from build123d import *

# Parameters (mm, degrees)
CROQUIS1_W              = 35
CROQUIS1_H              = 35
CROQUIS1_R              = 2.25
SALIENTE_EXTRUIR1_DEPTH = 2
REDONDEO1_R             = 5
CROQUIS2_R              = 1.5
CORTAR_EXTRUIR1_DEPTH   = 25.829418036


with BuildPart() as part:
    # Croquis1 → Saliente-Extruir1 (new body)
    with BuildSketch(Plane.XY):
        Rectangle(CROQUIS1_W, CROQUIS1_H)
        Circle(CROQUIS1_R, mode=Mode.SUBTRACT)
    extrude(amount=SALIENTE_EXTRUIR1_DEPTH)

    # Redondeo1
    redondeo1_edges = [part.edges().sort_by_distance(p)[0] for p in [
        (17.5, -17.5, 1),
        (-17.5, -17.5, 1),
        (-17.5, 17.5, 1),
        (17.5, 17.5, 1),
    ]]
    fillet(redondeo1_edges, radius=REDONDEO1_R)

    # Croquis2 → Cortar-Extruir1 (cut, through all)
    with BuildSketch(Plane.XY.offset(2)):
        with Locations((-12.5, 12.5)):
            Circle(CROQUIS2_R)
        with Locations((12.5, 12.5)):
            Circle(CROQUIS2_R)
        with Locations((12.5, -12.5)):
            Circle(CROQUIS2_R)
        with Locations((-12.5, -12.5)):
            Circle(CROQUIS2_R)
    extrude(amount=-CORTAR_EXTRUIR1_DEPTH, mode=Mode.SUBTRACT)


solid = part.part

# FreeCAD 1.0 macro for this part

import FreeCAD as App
import Part
import Sketcher

V = App.Vector


def edges_at(feature, points):
    """Names of the edges that pass closest to the given points."""
    edges = feature.Shape.Edges
    near = lambda p: min(range(len(edges)), key=lambda i: edges[i].distToShape(Part.Vertex(*p))[0])
    return sorted({f"Edge{near(p) + 1}" for p in points})


def add_polygon(sketch, points):
    """Adds a closed chain of lines whose ends are joined by coincident constraints."""
    first, n = sketch.GeometryCount, len(points)
    for a, b in zip(points, points[1:] + points[:1]):
        sketch.addGeometry(Part.LineSegment(App.Vector(*a, 0), App.Vector(*b, 0)), False)
    for i in range(n):
        sketch.addConstraint(Sketcher.Constraint("Coincident", first + i, 2, first + (i + 1) % n, 1))

doc = App.newDocument("Part")
body = doc.addObject("PartDesign::Body", "Body")

# Sketch on XY plane
sketch1 = doc.addObject("Sketcher::SketchObject", "Sketch")
body.addObject(sketch1)
sketch1.AttachmentSupport = (doc.XY_Plane, [""])
sketch1.MapMode = "FlatFace"
add_polygon(sketch1, [(-17.5, 17.5), (-17.5, -17.5), (17.5, -17.5), (17.5, 17.5)])  # lines 0-3
sketch1.addGeometry(Part.Circle(V(0, 0, 0), V(0, 0, 1), 2.2), False)  # 4
sketch1.addConstraint([
    Sketcher.Constraint("Vertical", 0),
    Sketcher.Constraint("Horizontal", 1),
    Sketcher.Constraint("Vertical", 2),
    Sketcher.Constraint("Horizontal", 3),
    Sketcher.Constraint("Coincident", 4, 3, -1, 1),
    Sketcher.Constraint("Symmetric", 0, 2, 2, 2, -1, 1),
    Sketcher.Constraint("Equal", 3, 0),
    Sketcher.Constraint("Diameter", 4, 4.5),
    Sketcher.Constraint("DistanceX", 1, 1, 1, 2, 35.0),
])
pad1 = doc.addObject("PartDesign::Pad", "Pad")
body.addObject(pad1)
pad1.Profile = sketch1
pad1.Length = 2
doc.recompute()

fillet = doc.addObject("PartDesign::Fillet", "Fillet")
body.addObject(fillet)
fillet.Base = (pad1, edges_at(pad1, [
    (17.5, -17.5, 1),
    (-17.5, -17.5, 1),
    (-17.5, 17.5, 1),
    (17.5, 17.5, 1),
]))
fillet.Radius = 5

# Sketch on XY plane
sketch2 = doc.addObject("Sketcher::SketchObject", "Sketch001")
body.addObject(sketch2)
sketch2.AttachmentSupport = (doc.XY_Plane, [""])
sketch2.MapMode = "FlatFace"
sketch2.AttachmentOffset = App.Placement(V(0, 0, 2), App.Rotation())
sketch2.addGeometry([
    Part.Circle(V(-12.5, 12.5, 0), V(0, 0, 1), 1.5),
    Part.Circle(V(12.5, 12.5, 0), V(0, 0, 1), 1.5),
    Part.Circle(V(12.5, -12.5, 0), V(0, 0, 1), 1.5),
    Part.Circle(V(-12.5, -12.5, 0), V(0, 0, 1), 1.5),
], False)
sketch2.addConstraint([
    Sketcher.Constraint("Equal", 0, 1),
    Sketcher.Constraint("Equal", 1, 2),
    Sketcher.Constraint("Equal", 2, 3),
    Sketcher.Constraint("Symmetric", 0, 3, 2, 3, -1, 1),
    Sketcher.Constraint("Symmetric", 1, 3, 3, 3, -1, 1),
    Sketcher.Constraint("Symmetric", 0, 3, 1, 3, -2),
    Sketcher.Constraint("Diameter", 0, 3.0),
    Sketcher.Constraint("DistanceX", 0, 3, 1, 3, 25.0),
    Sketcher.Constraint("DistanceY", 2, 3, 1, 3, 25.0),
])
pocket1 = doc.addObject("PartDesign::Pocket", "Pocket")
body.addObject(pocket1)
pocket1.Profile = sketch2
pocket1.Type = "ThroughAll"

doc.recompute()
